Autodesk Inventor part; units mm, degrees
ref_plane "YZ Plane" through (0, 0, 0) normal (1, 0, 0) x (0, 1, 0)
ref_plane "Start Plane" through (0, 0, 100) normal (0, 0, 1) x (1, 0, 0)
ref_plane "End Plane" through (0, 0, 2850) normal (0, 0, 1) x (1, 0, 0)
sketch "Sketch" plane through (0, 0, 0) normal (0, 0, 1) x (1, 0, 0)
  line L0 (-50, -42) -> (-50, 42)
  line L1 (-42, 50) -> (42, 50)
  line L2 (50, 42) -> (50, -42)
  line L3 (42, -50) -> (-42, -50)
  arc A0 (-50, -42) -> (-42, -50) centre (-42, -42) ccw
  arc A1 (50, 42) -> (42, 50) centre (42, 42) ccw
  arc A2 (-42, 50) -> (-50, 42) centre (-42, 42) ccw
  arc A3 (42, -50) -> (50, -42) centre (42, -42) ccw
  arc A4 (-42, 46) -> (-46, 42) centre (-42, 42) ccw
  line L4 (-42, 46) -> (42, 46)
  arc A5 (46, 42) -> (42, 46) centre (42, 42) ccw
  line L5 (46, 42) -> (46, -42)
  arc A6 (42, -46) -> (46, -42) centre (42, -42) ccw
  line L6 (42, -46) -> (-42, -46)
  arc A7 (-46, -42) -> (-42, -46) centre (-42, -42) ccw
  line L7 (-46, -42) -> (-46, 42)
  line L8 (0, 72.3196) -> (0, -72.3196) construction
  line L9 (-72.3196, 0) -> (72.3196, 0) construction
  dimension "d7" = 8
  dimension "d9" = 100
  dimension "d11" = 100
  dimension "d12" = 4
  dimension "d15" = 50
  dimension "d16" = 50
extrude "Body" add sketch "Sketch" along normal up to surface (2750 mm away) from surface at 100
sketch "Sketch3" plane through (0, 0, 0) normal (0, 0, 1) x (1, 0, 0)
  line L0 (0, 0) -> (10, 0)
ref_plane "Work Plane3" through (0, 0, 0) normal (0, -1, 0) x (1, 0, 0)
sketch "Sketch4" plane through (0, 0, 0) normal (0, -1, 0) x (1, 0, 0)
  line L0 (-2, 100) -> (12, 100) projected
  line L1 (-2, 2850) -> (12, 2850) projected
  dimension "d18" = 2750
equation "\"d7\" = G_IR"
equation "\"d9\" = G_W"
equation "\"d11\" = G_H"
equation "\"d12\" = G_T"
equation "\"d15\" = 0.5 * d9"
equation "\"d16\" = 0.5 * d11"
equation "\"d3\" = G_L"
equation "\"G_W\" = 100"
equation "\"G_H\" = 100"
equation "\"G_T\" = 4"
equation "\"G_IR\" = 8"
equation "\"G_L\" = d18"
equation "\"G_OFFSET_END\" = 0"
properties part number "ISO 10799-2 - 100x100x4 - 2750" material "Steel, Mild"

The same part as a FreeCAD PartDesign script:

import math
import FreeCAD as App
import Part
import Sketcher

V = App.Vector
Q = App.Units.Quantity

doc = App.newDocument("Part")
body = doc.addObject("PartDesign::Body", "Body")

# Sketch on XY plane
sketch1 = body.newObject("Sketcher::SketchObject", "Sketch")
sketch1.AttachmentSupport = (doc.getObject("XY_Plane"), [""])
sketch1.MapMode = "FlatFace"
sketch1.AttachmentOffset = App.Placement(V(0, 0, 100), App.Rotation())
sketch1.addGeometry(Part.LineSegment(V(-50, 42, 0), V(-50, -42, 0)), False)
sketch1.addGeometry(Part.ArcOfCircle(Part.Circle(V(-42, -42, 0), V(0, 0, 1), 8), math.radians(180), math.radians(270)), False)
sketch1.addGeometry(Part.LineSegment(V(-42, -50, 0), V(42, -50, 0)), False)
sketch1.addGeometry(Part.ArcOfCircle(Part.Circle(V(42, -42, 0), V(0, 0, 1), 8), math.radians(-90), math.radians(0)), False)
sketch1.addGeometry(Part.LineSegment(V(50, -42, 0), V(50, 42, 0)), False)
sketch1.addGeometry(Part.ArcOfCircle(Part.Circle(V(42, 42, 0), V(0, 0, 1), 8), math.radians(0), math.radians(90)), False)
sketch1.addGeometry(Part.LineSegment(V(42, 50, 0), V(-42, 50, 0)), False)
sketch1.addGeometry(Part.ArcOfCircle(Part.Circle(V(-42, 42, 0), V(0, 0, 1), 8), math.radians(90), math.radians(180)), False)
sketch1.addGeometry(Part.ArcOfCircle(Part.Circle(V(-42, 42, 0), V(0, 0, 1), 4), math.radians(90), math.radians(180)), False)
sketch1.addGeometry(Part.LineSegment(V(-42, 46, 0), V(42, 46, 0)), False)
sketch1.addGeometry(Part.ArcOfCircle(Part.Circle(V(42, 42, 0), V(0, 0, 1), 4), math.radians(0), math.radians(90)), False)
sketch1.addGeometry(Part.LineSegment(V(46, 42, 0), V(46, -42, 0)), False)
sketch1.addGeometry(Part.ArcOfCircle(Part.Circle(V(42, -42, 0), V(0, 0, 1), 4), math.radians(-90), math.radians(0)), False)
sketch1.addGeometry(Part.LineSegment(V(42, -46, 0), V(-42, -46, 0)), False)
sketch1.addGeometry(Part.ArcOfCircle(Part.Circle(V(-42, -42, 0), V(0, 0, 1), 4), math.radians(180), math.radians(270)), False)
sketch1.addGeometry(Part.LineSegment(V(-46, -42, 0), V(-46, 42, 0)), False)
sketch1.addConstraint(Sketcher.Constraint("Tangent", 0, 2, 1, 1))
sketch1.addConstraint(Sketcher.Constraint("Tangent", 1, 2, 2, 1))
sketch1.addConstraint(Sketcher.Constraint("Tangent", 2, 2, 3, 1))
sketch1.addConstraint(Sketcher.Constraint("Tangent", 3, 2, 4, 1))
sketch1.addConstraint(Sketcher.Constraint("Tangent", 4, 2, 5, 1))
sketch1.addConstraint(Sketcher.Constraint("Tangent", 5, 2, 6, 1))
sketch1.addConstraint(Sketcher.Constraint("Tangent", 6, 2, 7, 1))
sketch1.addConstraint(Sketcher.Constraint("Tangent", 7, 2, 0, 1))
sketch1.addConstraint(Sketcher.Constraint("Tangent", 8, 1, 9, 1))
sketch1.addConstraint(Sketcher.Constraint("Tangent", 9, 2, 10, 2))
sketch1.addConstraint(Sketcher.Constraint("Tangent", 10, 1, 11, 1))
sketch1.addConstraint(Sketcher.Constraint("Tangent", 11, 2, 12, 2))
sketch1.addConstraint(Sketcher.Constraint("Tangent", 12, 1, 13, 1))
sketch1.addConstraint(Sketcher.Constraint("Tangent", 13, 2, 14, 2))
sketch1.addConstraint(Sketcher.Constraint("Tangent", 14, 1, 15, 1))
sketch1.addConstraint(Sketcher.Constraint("Tangent", 15, 2, 8, 2))
sketch1.addConstraint(Sketcher.Constraint("Vertical", 0))
sketch1.addConstraint(Sketcher.Constraint("Horizontal", 2))
sketch1.addConstraint(Sketcher.Constraint("Vertical", 4))
sketch1.addConstraint(Sketcher.Constraint("Horizontal", 6))
sketch1.addConstraint(Sketcher.Constraint("Horizontal", 9))
sketch1.addConstraint(Sketcher.Constraint("Vertical", 11))
sketch1.addConstraint(Sketcher.Constraint("Horizontal", 13))
sketch1.addConstraint(Sketcher.Constraint("Vertical", 15))
sketch1.addConstraint(Sketcher.Constraint("Coincident", 8, 3, 7, 3))
sketch1.addConstraint(Sketcher.Constraint("Coincident", 10, 3, 5, 3))
sketch1.addConstraint(Sketcher.Constraint("Coincident", 12, 3, 3, 3))
sketch1.addConstraint(Sketcher.Constraint("Equal", 1, 3))
sketch1.addConstraint(Sketcher.Constraint("Equal", 3, 5))
sketch1.addConstraint(Sketcher.Constraint("Equal", 5, 7))
sketch1.addConstraint(Sketcher.Constraint("Equal", 12, 14))
sketch1.addConstraint(Sketcher.Constraint("Symmetric", 1, 3, 5, 3, -1, 1))
sketch1.addConstraint(Sketcher.Constraint("Equal", 13, 0))
sketch1.addConstraint(Sketcher.Constraint("Radius", 1, Q("8 mm")))
sketch1.addConstraint(Sketcher.Constraint("Radius", 8, Q("4 mm")))
sketch1.addConstraint(Sketcher.Constraint("DistanceX", 0, 2, -1, 1, Q("50 mm")))
pad1 = body.newObject("PartDesign::Pad", "Pad")
pad1.Profile = sketch1
pad1.Length = 2750

doc.recompute()
